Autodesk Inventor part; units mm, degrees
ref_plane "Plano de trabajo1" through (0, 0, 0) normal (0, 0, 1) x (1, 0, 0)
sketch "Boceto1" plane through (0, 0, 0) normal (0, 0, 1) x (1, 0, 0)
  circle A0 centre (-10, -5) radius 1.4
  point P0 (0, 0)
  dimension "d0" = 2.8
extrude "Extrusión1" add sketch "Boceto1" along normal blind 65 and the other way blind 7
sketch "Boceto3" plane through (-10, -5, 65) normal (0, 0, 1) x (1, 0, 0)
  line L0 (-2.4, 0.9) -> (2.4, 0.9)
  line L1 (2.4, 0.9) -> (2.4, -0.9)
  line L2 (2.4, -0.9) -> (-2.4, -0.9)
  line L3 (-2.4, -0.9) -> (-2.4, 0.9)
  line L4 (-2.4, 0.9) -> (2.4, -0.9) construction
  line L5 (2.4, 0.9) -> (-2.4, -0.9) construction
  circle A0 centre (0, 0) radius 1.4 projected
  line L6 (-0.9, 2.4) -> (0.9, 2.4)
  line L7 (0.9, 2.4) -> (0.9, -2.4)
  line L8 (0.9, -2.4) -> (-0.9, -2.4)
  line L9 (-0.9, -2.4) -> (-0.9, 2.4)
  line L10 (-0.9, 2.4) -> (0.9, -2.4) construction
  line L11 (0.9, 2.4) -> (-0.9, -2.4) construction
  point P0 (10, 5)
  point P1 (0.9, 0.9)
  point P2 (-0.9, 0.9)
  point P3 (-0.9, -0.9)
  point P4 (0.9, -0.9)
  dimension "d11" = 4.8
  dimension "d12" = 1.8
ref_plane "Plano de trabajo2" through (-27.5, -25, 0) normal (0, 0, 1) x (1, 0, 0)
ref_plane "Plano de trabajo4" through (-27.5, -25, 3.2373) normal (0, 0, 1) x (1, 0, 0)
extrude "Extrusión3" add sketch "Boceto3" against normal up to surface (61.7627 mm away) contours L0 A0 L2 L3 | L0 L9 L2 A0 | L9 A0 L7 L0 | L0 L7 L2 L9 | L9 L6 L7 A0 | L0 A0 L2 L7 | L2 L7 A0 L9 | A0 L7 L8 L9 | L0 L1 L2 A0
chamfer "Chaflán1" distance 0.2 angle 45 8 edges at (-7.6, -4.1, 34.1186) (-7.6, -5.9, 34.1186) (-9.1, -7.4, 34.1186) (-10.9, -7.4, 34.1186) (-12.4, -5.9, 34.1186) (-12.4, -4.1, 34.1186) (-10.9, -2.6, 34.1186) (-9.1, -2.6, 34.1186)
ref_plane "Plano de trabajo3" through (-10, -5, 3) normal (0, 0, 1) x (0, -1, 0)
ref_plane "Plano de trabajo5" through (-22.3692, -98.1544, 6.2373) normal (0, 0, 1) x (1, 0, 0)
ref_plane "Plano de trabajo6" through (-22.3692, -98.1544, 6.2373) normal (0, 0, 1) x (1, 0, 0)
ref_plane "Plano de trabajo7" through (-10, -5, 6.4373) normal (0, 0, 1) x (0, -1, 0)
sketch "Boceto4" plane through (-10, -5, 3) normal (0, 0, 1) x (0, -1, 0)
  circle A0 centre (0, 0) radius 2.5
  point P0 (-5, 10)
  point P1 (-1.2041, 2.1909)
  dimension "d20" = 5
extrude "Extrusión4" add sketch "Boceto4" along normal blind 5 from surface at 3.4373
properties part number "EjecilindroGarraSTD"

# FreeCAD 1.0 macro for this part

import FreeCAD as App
import Part
import Sketcher

V = App.Vector
Q = App.Units.Quantity


def edges_at(feature, points):
    """Names of the edges that pass closest to the given points."""
    edges = feature.Shape.Edges
    near = lambda p: min(range(len(edges)), key=lambda i: edges[i].distToShape(Part.Vertex(*p))[0])
    return sorted({f"Edge{near(p) + 1}" for p in points})


def add_polygon(sketch, points):
    """Adds a closed chain of lines whose ends are joined by coincident constraints."""
    first, n = sketch.GeometryCount, len(points)
    for a, b in zip(points, points[1:] + points[:1]):
        sketch.addGeometry(Part.LineSegment(App.Vector(*a, 0), App.Vector(*b, 0)), False)
    for i in range(n):
        sketch.addConstraint(Sketcher.Constraint("Coincident", first + i, 2, first + (i + 1) % n, 1))

doc = App.newDocument("Part")
body = doc.addObject("PartDesign::Body", "Body")

sketch1 = body.newObject("Sketcher::SketchObject", "Sketch")
sketch1.AttachmentSupport = (doc.getObject("XY_Plane"), [""])
sketch1.MapMode = "FlatFace"
sketch1.addGeometry(Part.Circle(V(-10, -5, 0), V(0, 0, 1), 1.4), False)
sketch1.addConstraint([
    Sketcher.Constraint("Diameter", 0, Q("2.8 mm")),
    Sketcher.Constraint("DistanceX", 0, 3, -1, 1, Q("10 mm")),
    Sketcher.Constraint("DistanceY", 0, 3, -1, 1, Q("5 mm")),
])
pad1 = body.newObject("PartDesign::Pad", "Pad")
pad1.Profile = sketch1
pad1.Type = "TwoLengths"
pad1.Length = 65
pad1.Length2 = 7

sketch2 = body.newObject("Sketcher::SketchObject", "Sketch001")
sketch2.AttachmentSupport = (doc.getObject("XY_Plane"), [""])
sketch2.MapMode = "FlatFace"
sketch2.AttachmentOffset = App.Placement(V(0, 0, 65), App.Rotation())
add_polygon(sketch2, [(-12.4, -4.1), (-12.4, -5.9), (-10.9, -5.9), (-10.9, -7.4), (-9.1, -7.4), (-9.1, -5.9), (-7.6, -5.9), (-7.6, -4.1), (-9.1, -4.1), (-9.1, -2.6), (-10.9, -2.6), (-10.9, -4.1)])
sketch2.addConstraint([
    Sketcher.Constraint("Vertical", 0),
    Sketcher.Constraint("Horizontal", 1),
    Sketcher.Constraint("Vertical", 2),
    Sketcher.Constraint("Horizontal", 3),
    Sketcher.Constraint("Vertical", 4),
    Sketcher.Constraint("Horizontal", 5),
    Sketcher.Constraint("Vertical", 6),
    Sketcher.Constraint("Horizontal", 7),
    Sketcher.Constraint("Vertical", 8),
    Sketcher.Constraint("Horizontal", 9),
    Sketcher.Constraint("Vertical", 10),
    Sketcher.Constraint("Horizontal", 11),
    Sketcher.Constraint("Horizontal", 1, 2, 4, 2),
    Sketcher.Constraint("Horizontal", 7, 2, 10, 2),
    Sketcher.Constraint("Vertical", 4, 2, 7, 2),
    Sketcher.Constraint("Vertical", 2, 2, 9, 2),
    Sketcher.Constraint("Equal", 1, 5),
    Sketcher.Constraint("Equal", 9, 0),
    Sketcher.Constraint("Equal", 11, 2),
    Sketcher.Constraint("Equal", 4, 8),
    Sketcher.Constraint("DistanceX", 3, 1, 3, 2, Q("1.8 mm")),
    Sketcher.Constraint("DistanceX", 0, 2, 5, 2, Q("4.8 mm")),
    Sketcher.Constraint("DistanceX", 0, 2, -1, 1, Q("12.4 mm")),
    Sketcher.Constraint("DistanceY", 0, 2, -1, 1, Q("5.9 mm")),
])
pad2 = body.newObject("PartDesign::Pad", "Pad001")
pad2.Profile = sketch2
pad2.Length = 61.7627
pad2.Reversed = True
doc.recompute()

chamfer = body.newObject("PartDesign::Chamfer", "Chamfer")
chamfer.Base = (pad2, edges_at(pad2, [
    (-7.6, -4.1, 34.119),
    (-7.6, -5.9, 34.119),
    (-9.1, -7.4, 34.119),
    (-10.9, -7.4, 34.119),
    (-12.4, -5.9, 34.119),
    (-12.4, -4.1, 34.119),
    (-10.9, -2.6, 34.119),
    (-9.1, -2.6, 34.119),
]))
chamfer.Size = 0.2

sketch3 = body.newObject("Sketcher::SketchObject", "Sketch002")
sketch3.AttachmentSupport = (doc.getObject("XY_Plane"), [""])
sketch3.MapMode = "FlatFace"
sketch3.AttachmentOffset = App.Placement(V(0, 0, 6.4373), App.Rotation())
sketch3.addGeometry(Part.Circle(V(-10, -5, 0), V(0, 0, 1), 2.5), False)
sketch3.addConstraint([
    Sketcher.Constraint("Diameter", 0, Q("5 mm")),
    Sketcher.Constraint("DistanceY", 0, 3, -1, 1, Q("5 mm")),
    Sketcher.Constraint("DistanceX", 0, 3, -1, 1, Q("10 mm")),
])
pad3 = body.newObject("PartDesign::Pad", "Pad002")
pad3.Profile = sketch3
pad3.Length = 5

doc.recompute()
